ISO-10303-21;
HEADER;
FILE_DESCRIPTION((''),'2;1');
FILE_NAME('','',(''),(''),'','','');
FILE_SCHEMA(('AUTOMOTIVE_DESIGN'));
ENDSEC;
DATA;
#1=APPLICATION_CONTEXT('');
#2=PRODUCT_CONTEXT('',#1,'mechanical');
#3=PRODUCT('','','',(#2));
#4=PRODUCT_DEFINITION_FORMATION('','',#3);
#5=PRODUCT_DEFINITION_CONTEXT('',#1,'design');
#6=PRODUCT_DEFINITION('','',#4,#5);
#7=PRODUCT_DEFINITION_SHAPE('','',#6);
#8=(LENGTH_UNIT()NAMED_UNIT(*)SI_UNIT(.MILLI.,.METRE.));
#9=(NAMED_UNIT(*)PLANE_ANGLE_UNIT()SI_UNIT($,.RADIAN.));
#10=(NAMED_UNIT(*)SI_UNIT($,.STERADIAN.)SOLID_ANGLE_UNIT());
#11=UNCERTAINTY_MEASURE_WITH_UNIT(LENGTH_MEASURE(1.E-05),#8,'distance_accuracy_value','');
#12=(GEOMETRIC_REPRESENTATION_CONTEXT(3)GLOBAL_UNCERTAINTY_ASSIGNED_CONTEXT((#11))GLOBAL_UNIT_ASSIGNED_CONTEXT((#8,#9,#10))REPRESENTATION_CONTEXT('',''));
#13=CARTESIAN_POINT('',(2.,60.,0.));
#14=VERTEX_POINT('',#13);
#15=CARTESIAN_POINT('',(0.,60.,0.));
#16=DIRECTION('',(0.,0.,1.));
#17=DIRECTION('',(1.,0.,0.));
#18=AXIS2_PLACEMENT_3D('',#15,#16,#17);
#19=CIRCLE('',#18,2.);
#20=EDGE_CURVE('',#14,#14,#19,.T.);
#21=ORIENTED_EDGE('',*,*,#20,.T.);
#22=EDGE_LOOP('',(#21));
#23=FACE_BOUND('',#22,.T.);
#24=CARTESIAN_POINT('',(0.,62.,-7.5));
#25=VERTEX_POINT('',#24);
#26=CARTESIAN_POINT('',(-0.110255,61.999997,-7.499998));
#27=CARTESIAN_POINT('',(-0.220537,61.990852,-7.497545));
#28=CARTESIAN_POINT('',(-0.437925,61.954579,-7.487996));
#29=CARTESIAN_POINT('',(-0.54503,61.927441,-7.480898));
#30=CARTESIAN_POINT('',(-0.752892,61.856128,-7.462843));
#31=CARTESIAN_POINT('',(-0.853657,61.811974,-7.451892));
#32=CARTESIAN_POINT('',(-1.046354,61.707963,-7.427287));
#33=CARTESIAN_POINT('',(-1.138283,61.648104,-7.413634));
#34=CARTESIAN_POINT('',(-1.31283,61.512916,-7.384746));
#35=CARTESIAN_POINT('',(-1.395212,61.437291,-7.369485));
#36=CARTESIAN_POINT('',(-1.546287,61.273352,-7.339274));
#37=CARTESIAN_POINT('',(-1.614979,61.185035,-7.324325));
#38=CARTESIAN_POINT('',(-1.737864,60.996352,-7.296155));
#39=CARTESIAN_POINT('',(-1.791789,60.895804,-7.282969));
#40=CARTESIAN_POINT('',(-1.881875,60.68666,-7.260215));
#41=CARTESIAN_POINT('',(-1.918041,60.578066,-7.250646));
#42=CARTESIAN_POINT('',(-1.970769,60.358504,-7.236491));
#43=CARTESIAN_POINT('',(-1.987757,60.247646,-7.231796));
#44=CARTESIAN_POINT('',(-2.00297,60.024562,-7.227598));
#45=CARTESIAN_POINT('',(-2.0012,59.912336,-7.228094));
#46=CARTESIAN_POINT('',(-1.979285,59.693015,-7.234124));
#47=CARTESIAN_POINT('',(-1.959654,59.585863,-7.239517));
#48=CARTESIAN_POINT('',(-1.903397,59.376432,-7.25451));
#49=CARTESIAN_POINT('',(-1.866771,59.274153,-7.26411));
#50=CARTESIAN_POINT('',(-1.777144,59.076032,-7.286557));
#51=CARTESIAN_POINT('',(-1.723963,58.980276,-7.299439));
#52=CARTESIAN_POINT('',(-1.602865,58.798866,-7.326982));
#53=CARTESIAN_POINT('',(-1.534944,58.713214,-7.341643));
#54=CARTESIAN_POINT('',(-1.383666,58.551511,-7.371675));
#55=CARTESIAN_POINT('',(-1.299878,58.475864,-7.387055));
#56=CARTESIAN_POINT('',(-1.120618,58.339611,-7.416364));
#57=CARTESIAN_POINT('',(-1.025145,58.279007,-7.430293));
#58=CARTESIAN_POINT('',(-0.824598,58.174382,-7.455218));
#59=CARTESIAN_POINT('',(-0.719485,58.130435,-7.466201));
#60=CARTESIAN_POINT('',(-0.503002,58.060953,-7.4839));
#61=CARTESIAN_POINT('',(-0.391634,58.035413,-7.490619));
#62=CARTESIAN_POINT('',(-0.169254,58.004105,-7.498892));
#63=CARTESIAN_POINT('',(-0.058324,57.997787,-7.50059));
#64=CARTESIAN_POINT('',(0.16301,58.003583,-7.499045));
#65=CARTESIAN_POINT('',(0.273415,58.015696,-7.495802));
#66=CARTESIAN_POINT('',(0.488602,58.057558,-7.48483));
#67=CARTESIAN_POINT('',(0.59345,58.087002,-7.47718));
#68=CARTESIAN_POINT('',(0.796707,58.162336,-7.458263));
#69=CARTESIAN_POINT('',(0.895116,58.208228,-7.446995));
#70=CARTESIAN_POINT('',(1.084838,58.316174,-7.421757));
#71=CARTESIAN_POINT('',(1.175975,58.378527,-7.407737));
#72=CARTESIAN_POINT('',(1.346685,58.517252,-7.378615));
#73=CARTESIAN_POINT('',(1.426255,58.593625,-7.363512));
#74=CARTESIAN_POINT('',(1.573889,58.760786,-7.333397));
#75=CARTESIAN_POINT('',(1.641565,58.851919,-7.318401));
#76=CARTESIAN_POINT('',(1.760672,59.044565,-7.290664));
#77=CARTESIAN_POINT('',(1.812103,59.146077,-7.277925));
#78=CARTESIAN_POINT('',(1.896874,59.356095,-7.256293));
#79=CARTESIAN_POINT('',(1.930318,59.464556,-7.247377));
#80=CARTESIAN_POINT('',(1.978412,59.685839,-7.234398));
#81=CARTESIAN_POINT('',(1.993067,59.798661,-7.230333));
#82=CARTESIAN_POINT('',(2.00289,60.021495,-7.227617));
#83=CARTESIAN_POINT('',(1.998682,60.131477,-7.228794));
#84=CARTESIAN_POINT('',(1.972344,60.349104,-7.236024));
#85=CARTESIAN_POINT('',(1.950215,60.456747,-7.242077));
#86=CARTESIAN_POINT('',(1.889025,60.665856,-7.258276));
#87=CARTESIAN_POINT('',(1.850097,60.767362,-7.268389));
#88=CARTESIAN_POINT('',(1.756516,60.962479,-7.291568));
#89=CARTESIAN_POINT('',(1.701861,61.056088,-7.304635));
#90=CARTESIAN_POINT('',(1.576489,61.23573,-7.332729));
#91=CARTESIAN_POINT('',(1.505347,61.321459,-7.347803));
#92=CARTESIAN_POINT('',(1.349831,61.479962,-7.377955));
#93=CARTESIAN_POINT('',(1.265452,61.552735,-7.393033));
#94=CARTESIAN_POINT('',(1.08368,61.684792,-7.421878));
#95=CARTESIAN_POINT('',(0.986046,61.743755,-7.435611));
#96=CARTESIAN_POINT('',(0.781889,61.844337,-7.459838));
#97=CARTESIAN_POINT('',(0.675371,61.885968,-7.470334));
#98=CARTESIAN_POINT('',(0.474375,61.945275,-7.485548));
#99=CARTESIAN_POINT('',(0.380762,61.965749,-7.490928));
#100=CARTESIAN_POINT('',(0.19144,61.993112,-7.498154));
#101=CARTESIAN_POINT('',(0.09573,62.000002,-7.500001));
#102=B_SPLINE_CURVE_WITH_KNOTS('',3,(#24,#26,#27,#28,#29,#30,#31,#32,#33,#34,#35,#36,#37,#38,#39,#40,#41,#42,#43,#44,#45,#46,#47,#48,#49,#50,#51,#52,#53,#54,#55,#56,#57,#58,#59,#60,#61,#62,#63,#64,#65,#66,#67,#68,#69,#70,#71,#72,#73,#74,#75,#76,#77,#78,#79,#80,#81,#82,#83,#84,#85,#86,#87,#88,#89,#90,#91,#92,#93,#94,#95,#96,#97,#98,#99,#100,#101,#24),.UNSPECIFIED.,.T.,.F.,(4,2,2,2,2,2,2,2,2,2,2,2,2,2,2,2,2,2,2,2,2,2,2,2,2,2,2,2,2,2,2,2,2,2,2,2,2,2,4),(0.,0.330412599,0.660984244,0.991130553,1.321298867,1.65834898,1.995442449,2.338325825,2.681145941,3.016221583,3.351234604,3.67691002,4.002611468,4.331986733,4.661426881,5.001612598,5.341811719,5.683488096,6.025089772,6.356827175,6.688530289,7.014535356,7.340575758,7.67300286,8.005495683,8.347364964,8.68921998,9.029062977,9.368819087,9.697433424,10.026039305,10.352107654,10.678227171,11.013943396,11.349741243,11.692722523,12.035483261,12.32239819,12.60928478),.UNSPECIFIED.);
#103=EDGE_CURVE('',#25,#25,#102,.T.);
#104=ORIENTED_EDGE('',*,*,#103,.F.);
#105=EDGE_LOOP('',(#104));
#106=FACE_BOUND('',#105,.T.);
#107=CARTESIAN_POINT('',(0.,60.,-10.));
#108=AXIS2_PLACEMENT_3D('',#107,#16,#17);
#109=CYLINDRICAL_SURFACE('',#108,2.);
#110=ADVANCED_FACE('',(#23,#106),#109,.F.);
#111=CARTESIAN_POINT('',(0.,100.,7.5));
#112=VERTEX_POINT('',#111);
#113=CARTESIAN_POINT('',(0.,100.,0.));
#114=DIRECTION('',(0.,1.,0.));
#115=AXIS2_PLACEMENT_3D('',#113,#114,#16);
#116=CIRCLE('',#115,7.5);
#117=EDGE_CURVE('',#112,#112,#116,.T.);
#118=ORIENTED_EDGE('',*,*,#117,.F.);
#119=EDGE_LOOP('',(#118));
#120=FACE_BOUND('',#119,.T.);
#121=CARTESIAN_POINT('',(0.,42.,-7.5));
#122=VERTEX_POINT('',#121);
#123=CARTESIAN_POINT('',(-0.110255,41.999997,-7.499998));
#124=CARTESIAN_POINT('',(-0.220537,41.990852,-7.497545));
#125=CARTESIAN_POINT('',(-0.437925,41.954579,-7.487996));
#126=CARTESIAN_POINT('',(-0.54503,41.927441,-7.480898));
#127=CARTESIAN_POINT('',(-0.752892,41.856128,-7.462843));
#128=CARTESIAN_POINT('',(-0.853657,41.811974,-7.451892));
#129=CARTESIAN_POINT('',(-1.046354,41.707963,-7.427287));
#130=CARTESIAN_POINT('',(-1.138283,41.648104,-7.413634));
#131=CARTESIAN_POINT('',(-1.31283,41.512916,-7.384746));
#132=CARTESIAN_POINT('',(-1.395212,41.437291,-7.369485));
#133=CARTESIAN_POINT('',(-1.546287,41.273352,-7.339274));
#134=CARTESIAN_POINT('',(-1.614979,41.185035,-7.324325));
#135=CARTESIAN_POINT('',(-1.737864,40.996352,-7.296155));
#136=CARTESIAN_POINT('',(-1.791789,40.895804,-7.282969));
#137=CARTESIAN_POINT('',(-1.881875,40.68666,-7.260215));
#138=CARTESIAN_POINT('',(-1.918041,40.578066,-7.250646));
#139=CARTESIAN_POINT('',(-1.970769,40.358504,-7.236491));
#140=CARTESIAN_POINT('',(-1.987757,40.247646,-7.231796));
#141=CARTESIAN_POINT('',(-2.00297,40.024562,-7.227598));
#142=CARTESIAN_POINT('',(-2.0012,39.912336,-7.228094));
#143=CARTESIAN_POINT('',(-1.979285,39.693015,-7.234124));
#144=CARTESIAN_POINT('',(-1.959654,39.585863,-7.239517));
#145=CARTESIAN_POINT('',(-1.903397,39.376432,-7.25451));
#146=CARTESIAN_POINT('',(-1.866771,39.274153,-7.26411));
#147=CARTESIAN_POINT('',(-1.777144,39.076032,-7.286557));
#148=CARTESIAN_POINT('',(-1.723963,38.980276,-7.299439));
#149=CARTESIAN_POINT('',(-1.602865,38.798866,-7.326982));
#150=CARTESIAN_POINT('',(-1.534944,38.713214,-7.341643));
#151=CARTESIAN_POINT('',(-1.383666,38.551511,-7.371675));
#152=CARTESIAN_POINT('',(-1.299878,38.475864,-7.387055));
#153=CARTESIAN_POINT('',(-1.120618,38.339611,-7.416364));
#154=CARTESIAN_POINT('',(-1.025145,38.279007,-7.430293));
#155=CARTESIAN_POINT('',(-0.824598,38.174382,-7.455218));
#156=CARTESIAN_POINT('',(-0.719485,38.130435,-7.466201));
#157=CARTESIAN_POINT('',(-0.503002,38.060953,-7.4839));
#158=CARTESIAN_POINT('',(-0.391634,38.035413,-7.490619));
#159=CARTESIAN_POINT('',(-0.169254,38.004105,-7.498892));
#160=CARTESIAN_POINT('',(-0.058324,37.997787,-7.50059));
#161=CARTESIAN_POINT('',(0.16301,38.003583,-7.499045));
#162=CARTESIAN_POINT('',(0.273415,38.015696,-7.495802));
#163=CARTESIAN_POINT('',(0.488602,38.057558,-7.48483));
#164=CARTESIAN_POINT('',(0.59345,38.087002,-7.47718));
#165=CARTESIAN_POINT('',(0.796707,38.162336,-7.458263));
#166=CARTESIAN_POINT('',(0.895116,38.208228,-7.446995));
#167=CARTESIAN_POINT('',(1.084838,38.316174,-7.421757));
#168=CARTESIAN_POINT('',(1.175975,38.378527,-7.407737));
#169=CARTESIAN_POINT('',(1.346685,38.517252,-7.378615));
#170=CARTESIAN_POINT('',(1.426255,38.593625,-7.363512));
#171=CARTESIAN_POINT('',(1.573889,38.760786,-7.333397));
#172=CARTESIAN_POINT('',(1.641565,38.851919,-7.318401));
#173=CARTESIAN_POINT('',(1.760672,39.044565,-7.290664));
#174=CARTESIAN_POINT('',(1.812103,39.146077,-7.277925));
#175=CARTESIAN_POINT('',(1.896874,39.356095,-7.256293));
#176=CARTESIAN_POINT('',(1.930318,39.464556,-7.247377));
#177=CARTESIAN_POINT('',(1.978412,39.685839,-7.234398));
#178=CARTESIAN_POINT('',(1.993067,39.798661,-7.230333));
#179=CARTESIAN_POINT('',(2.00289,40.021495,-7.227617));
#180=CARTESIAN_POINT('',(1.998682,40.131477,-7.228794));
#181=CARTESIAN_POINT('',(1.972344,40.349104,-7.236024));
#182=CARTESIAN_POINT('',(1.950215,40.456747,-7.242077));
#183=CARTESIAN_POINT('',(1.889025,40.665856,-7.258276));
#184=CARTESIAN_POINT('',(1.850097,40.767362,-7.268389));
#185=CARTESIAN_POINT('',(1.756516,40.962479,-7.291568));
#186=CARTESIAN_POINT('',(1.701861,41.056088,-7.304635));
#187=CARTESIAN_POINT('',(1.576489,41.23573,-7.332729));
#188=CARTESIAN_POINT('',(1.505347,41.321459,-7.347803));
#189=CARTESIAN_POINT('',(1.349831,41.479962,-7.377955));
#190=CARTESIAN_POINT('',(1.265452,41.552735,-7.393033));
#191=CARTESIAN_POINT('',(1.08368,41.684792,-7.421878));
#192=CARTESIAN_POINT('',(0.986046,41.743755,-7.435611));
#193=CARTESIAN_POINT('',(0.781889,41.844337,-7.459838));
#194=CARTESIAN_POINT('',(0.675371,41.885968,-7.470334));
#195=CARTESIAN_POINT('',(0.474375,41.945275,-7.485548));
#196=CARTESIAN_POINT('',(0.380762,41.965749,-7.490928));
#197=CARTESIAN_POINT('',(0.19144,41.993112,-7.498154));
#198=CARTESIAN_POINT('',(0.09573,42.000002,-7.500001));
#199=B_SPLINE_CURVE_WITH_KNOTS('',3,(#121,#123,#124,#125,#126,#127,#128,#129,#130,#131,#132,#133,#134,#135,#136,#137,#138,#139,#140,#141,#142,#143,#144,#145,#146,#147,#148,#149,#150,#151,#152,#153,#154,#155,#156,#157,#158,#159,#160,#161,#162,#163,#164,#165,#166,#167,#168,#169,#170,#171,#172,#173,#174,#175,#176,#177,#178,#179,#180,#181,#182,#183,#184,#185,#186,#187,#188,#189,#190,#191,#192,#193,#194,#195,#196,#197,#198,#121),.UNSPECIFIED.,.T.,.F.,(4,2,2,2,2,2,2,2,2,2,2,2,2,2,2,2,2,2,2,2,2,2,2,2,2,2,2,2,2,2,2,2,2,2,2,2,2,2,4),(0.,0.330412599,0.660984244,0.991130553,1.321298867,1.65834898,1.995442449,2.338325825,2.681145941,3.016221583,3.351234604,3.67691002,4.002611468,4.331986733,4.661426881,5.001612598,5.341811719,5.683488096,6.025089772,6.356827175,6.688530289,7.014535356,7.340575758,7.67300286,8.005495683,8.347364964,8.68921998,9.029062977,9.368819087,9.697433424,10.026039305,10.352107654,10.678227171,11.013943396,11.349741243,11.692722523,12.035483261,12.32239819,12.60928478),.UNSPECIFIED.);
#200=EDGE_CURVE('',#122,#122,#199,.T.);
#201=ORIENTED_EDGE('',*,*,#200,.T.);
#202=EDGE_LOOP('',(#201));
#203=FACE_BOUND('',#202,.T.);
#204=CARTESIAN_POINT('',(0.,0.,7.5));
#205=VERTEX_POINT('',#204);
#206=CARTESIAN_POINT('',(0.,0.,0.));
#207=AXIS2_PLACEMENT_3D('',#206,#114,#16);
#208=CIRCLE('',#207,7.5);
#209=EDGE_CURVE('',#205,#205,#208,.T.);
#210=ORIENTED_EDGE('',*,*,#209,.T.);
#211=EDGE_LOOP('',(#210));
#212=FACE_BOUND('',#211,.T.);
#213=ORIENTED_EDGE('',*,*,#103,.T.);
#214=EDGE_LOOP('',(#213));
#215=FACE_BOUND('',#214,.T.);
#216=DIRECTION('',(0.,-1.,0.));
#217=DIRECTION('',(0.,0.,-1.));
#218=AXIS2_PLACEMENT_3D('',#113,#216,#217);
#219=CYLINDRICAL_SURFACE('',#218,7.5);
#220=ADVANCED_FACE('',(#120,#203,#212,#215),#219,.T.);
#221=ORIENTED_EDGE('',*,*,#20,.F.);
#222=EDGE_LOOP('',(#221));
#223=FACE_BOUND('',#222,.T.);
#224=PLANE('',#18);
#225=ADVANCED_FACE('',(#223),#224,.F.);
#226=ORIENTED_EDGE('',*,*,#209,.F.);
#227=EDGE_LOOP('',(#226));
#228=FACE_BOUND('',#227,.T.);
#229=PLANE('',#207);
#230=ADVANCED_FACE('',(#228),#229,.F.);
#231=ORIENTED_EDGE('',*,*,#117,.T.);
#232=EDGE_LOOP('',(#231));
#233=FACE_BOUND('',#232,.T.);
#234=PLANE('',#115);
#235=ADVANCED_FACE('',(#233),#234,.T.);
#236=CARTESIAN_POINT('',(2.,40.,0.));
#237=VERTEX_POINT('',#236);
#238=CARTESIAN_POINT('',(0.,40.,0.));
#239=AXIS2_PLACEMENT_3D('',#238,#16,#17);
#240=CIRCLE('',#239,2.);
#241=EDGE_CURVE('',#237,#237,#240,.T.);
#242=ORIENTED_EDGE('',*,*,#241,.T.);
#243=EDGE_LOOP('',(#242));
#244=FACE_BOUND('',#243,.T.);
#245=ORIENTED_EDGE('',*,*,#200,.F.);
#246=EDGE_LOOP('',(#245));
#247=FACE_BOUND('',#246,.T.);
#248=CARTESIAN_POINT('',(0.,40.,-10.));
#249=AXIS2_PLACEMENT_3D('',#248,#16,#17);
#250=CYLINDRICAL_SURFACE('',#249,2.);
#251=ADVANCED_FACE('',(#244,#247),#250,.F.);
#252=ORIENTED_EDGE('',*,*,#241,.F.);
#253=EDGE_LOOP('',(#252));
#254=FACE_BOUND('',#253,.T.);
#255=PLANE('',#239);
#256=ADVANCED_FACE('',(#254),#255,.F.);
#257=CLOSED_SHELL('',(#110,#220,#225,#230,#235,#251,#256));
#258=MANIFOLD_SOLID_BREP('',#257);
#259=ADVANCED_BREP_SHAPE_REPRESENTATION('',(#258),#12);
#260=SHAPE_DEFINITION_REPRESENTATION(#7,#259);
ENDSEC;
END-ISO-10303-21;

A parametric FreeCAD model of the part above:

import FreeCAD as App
import Part
import Sketcher
from FreeCAD import Vector

doc = App.newDocument("Part")
params = doc.addObject("Spreadsheet::Sheet", "Params")
for row, (alias, value) in enumerate([
    ("sketch1_diameter", "15 mm"),
    ("pad1_length", "100 mm"),
    ("sketch2_diameter", "4 mm"),
    ("pocket1_length", "10 mm"),
], start=1):
    params.set(f"A{row}", alias)
    params.set(f"B{row}", "=" + value)
    params.setAlias(f"B{row}", alias)

body = doc.addObject("PartDesign::Body", "Body")

# Sketch on XZ plane
sketch1 = body.newObject("Sketcher::SketchObject", "Sketch")
sketch1.AttachmentSupport = (doc.getObject("XZ_Plane"), [""])
sketch1.MapMode = "FlatFace"
sketch1.addGeometry(Part.Circle(Vector(0, 0, 0), Vector(0, 0, 1), 7.5), False)
sketch1.addConstraint(Sketcher.Constraint("Coincident", 0, 3, -1, 1))
sketch1.addConstraint(Sketcher.Constraint("Diameter", 0, 15.0))
sketch1.setExpression("Constraints[1]", "Params.sketch1_diameter")
pad1 = body.newObject("PartDesign::Pad", "Pad")
pad1.Profile = sketch1
pad1.setExpression("Length", "Params.pad1_length")
pad1.Reversed = True

# Sketch on XY plane
sketch2 = body.newObject("Sketcher::SketchObject", "Sketch001")
sketch2.AttachmentSupport = (doc.getObject("XY_Plane"), [""])
sketch2.MapMode = "FlatFace"
sketch2.addGeometry(Part.Circle(Vector(0, 40, 0), Vector(0, 0, 1), 2), False)
sketch2.addGeometry(Part.Circle(Vector(0, 60, 0), Vector(0, 0, 1), 2), False)
sketch2.addConstraint(Sketcher.Constraint("Equal", 0, 1))
sketch2.addConstraint(Sketcher.Constraint("PointOnObject", 0, 3, -2))
sketch2.addConstraint(Sketcher.Constraint("PointOnObject", 1, 3, -2))
sketch2.addConstraint(Sketcher.Constraint("Diameter", 0, 4.0))
sketch2.addConstraint(Sketcher.Constraint("DistanceY", -1, 1, 0, 3, 40.0))
sketch2.addConstraint(Sketcher.Constraint("DistanceY", -1, 1, 1, 3, 60.0))
sketch2.setExpression("Constraints[3]", "Params.sketch2_diameter")
pocket1 = body.newObject("PartDesign::Pocket", "Pocket")
pocket1.Profile = sketch2
pocket1.setExpression("Length", "Params.pocket1_length")

doc.recompute()
